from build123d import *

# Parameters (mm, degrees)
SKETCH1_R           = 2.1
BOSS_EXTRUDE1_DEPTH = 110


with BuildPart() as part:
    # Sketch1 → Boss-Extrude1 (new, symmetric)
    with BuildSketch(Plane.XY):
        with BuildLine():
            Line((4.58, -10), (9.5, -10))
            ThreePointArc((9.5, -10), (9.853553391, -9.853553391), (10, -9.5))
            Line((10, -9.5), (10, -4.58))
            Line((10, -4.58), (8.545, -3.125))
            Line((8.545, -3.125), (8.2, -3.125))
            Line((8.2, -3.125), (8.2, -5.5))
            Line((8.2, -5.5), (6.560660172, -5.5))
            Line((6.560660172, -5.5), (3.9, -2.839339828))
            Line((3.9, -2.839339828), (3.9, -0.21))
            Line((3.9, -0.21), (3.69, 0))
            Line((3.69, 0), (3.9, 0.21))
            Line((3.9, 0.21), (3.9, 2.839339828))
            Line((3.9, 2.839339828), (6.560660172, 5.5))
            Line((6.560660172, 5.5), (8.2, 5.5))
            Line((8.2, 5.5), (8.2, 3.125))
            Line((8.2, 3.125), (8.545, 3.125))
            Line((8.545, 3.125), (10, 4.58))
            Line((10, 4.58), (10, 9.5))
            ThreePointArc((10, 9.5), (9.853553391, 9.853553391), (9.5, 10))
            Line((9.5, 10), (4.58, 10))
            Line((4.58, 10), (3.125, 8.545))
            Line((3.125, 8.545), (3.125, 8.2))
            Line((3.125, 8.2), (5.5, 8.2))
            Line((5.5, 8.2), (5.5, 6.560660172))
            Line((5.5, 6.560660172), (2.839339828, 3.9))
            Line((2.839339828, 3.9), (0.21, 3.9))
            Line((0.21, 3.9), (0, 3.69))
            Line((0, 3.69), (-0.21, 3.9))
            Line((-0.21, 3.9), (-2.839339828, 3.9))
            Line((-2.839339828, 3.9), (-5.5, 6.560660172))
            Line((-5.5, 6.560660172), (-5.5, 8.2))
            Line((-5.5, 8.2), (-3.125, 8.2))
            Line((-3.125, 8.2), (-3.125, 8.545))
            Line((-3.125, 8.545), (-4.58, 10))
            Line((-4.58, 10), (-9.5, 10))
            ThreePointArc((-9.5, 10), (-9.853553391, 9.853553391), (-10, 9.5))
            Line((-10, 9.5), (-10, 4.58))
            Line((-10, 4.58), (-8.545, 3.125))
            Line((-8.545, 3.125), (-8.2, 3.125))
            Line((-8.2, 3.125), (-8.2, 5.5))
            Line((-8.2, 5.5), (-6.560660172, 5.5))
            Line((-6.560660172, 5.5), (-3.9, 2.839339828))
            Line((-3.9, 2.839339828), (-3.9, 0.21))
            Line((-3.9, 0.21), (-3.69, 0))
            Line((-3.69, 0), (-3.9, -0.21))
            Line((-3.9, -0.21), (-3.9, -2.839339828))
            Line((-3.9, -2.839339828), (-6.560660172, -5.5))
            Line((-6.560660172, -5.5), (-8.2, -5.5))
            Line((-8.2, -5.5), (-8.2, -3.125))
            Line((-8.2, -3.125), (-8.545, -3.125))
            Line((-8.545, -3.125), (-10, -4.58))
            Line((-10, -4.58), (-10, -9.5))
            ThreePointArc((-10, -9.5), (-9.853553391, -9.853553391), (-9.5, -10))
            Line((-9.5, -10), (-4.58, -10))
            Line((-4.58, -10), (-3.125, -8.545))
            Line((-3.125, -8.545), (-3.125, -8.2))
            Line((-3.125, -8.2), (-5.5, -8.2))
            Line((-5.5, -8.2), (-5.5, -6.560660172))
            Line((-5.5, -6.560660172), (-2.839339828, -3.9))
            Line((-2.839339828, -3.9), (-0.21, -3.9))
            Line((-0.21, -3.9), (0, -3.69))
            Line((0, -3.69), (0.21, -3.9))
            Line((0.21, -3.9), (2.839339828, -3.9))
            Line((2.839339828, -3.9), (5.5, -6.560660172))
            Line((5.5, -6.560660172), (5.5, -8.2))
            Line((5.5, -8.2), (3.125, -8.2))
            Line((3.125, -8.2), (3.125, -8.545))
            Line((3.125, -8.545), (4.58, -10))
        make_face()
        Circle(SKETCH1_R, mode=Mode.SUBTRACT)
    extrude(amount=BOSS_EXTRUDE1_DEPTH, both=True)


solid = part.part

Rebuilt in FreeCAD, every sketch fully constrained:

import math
import FreeCAD as App
import Part
import Sketcher
from FreeCAD import Vector

doc = App.newDocument("Part")
body = doc.addObject("PartDesign::Body", "Body")

# Sketch on XY plane
sketch1 = body.newObject("Sketcher::SketchObject", "Sketch")
sketch1.AttachmentSupport = (doc.getObject("XY_Plane"), [""])
sketch1.MapMode = "FlatFace"
sketch1.addGeometry([
    Part.LineSegment(Vector(4.58, -10, 0), Vector(9.5, -10, 0)),  # 0
    Part.ArcOfCircle(Part.Circle(Vector(9.5, -9.5, 0), Vector(0, 0, 1), 0.5), math.radians(-90), math.radians(0)),  # 1
    Part.LineSegment(Vector(10, -9.5, 0), Vector(10, -4.58, 0)),  # 2
    Part.LineSegment(Vector(10, -4.58, 0), Vector(8.545, -3.125, 0)),  # 3
    Part.LineSegment(Vector(8.545, -3.125, 0), Vector(8.2, -3.125, 0)),  # 4
    Part.LineSegment(Vector(8.2, -3.125, 0), Vector(8.2, -5.5, 0)),  # 5
    Part.LineSegment(Vector(8.2, -5.5, 0), Vector(6.56066, -5.5, 0)),  # 6
    Part.LineSegment(Vector(6.56066, -5.5, 0), Vector(3.9, -2.83934, 0)),  # 7
    Part.LineSegment(Vector(3.9, -2.83934, 0), Vector(3.9, -0.21, 0)),  # 8
    Part.LineSegment(Vector(3.9, -0.21, 0), Vector(3.69, 0, 0)),  # 9
    Part.LineSegment(Vector(3.69, 0, 0), Vector(3.9, 0.21, 0)),  # 10
    Part.LineSegment(Vector(3.9, 0.21, 0), Vector(3.9, 2.83934, 0)),  # 11
    Part.LineSegment(Vector(3.9, 2.83934, 0), Vector(6.56066, 5.5, 0)),  # 12
    Part.LineSegment(Vector(6.56066, 5.5, 0), Vector(8.2, 5.5, 0)),  # 13
    Part.LineSegment(Vector(8.2, 5.5, 0), Vector(8.2, 3.125, 0)),  # 14
    Part.LineSegment(Vector(8.2, 3.125, 0), Vector(8.545, 3.125, 0)),  # 15
    Part.LineSegment(Vector(8.545, 3.125, 0), Vector(10, 4.58, 0)),  # 16
    Part.LineSegment(Vector(10, 4.58, 0), Vector(10, 9.5, 0)),  # 17
    Part.ArcOfCircle(Part.Circle(Vector(9.5, 9.5, 0), Vector(0, 0, 1), 0.5), math.radians(0), math.radians(90)),  # 18
    Part.LineSegment(Vector(9.5, 10, 0), Vector(4.58, 10, 0)),  # 19
    Part.LineSegment(Vector(4.58, 10, 0), Vector(3.125, 8.545, 0)),  # 20
    Part.LineSegment(Vector(3.125, 8.545, 0), Vector(3.125, 8.2, 0)),  # 21
    Part.LineSegment(Vector(3.125, 8.2, 0), Vector(5.5, 8.2, 0)),  # 22
    Part.LineSegment(Vector(5.5, 8.2, 0), Vector(5.5, 6.56066, 0)),  # 23
    Part.LineSegment(Vector(5.5, 6.56066, 0), Vector(2.83934, 3.9, 0)),  # 24
    Part.LineSegment(Vector(2.83934, 3.9, 0), Vector(0.21, 3.9, 0)),  # 25
    Part.LineSegment(Vector(0.21, 3.9, 0), Vector(0, 3.69, 0)),  # 26
    Part.LineSegment(Vector(0, 3.69, 0), Vector(-0.21, 3.9, 0)),  # 27
    Part.LineSegment(Vector(-0.21, 3.9, 0), Vector(-2.83934, 3.9, 0)),  # 28
    Part.LineSegment(Vector(-2.83934, 3.9, 0), Vector(-5.5, 6.56066, 0)),  # 29
    Part.LineSegment(Vector(-5.5, 6.56066, 0), Vector(-5.5, 8.2, 0)),  # 30
    Part.LineSegment(Vector(-5.5, 8.2, 0), Vector(-3.125, 8.2, 0)),  # 31
    Part.LineSegment(Vector(-3.125, 8.2, 0), Vector(-3.125, 8.545, 0)),  # 32
    Part.LineSegment(Vector(-3.125, 8.545, 0), Vector(-4.58, 10, 0)),  # 33
    Part.LineSegment(Vector(-4.58, 10, 0), Vector(-9.5, 10, 0)),  # 34
    Part.ArcOfCircle(Part.Circle(Vector(-9.5, 9.5, 0), Vector(0, 0, 1), 0.5), math.radians(90), math.radians(180)),  # 35
    Part.LineSegment(Vector(-10, 9.5, 0), Vector(-10, 4.58, 0)),  # 36
    Part.LineSegment(Vector(-10, 4.58, 0), Vector(-8.545, 3.125, 0)),  # 37
    Part.LineSegment(Vector(-8.545, 3.125, 0), Vector(-8.2, 3.125, 0)),  # 38
    Part.LineSegment(Vector(-8.2, 3.125, 0), Vector(-8.2, 5.5, 0)),  # 39
    Part.LineSegment(Vector(-8.2, 5.5, 0), Vector(-6.56066, 5.5, 0)),  # 40
    Part.LineSegment(Vector(-6.56066, 5.5, 0), Vector(-3.9, 2.83934, 0)),  # 41
    Part.LineSegment(Vector(-3.9, 2.83934, 0), Vector(-3.9, 0.21, 0)),  # 42
    Part.LineSegment(Vector(-3.9, 0.21, 0), Vector(-3.69, 0, 0)),  # 43
    Part.LineSegment(Vector(-3.69, 0, 0), Vector(-3.9, -0.21, 0)),  # 44
    Part.LineSegment(Vector(-3.9, -0.21, 0), Vector(-3.9, -2.83934, 0)),  # 45
    Part.LineSegment(Vector(-3.9, -2.83934, 0), Vector(-6.56066, -5.5, 0)),  # 46
    Part.LineSegment(Vector(-6.56066, -5.5, 0), Vector(-8.2, -5.5, 0)),  # 47
    Part.LineSegment(Vector(-8.2, -5.5, 0), Vector(-8.2, -3.125, 0)),  # 48
    Part.LineSegment(Vector(-8.2, -3.125, 0), Vector(-8.545, -3.125, 0)),  # 49
    Part.LineSegment(Vector(-8.545, -3.125, 0), Vector(-10, -4.58, 0)),  # 50
    Part.LineSegment(Vector(-10, -4.58, 0), Vector(-10, -9.5, 0)),  # 51
    Part.ArcOfCircle(Part.Circle(Vector(-9.5, -9.5, 0), Vector(0, 0, 1), 0.5), math.radians(180), math.radians(270)),  # 52
    Part.LineSegment(Vector(-9.5, -10, 0), Vector(-4.58, -10, 0)),  # 53
    Part.LineSegment(Vector(-4.58, -10, 0), Vector(-3.125, -8.545, 0)),  # 54
    Part.LineSegment(Vector(-3.125, -8.545, 0), Vector(-3.125, -8.2, 0)),  # 55
    Part.LineSegment(Vector(-3.125, -8.2, 0), Vector(-5.5, -8.2, 0)),  # 56
    Part.LineSegment(Vector(-5.5, -8.2, 0), Vector(-5.5, -6.56066, 0)),  # 57
    Part.LineSegment(Vector(-5.5, -6.56066, 0), Vector(-2.83934, -3.9, 0)),  # 58
    Part.LineSegment(Vector(-2.83934, -3.9, 0), Vector(-0.21, -3.9, 0)),  # 59
    Part.LineSegment(Vector(-0.21, -3.9, 0), Vector(0, -3.69, 0)),  # 60
    Part.LineSegment(Vector(0, -3.69, 0), Vector(0.21, -3.9, 0)),  # 61
    Part.LineSegment(Vector(0.21, -3.9, 0), Vector(2.83934, -3.9, 0)),  # 62
    Part.LineSegment(Vector(2.83934, -3.9, 0), Vector(5.5, -6.56066, 0)),  # 63
    Part.LineSegment(Vector(5.5, -6.56066, 0), Vector(5.5, -8.2, 0)),  # 64
    Part.LineSegment(Vector(5.5, -8.2, 0), Vector(3.125, -8.2, 0)),  # 65
    Part.LineSegment(Vector(3.125, -8.2, 0), Vector(3.125, -8.545, 0)),  # 66
    Part.LineSegment(Vector(3.125, -8.545, 0), Vector(4.58, -10, 0)),  # 67
    Part.Circle(Vector(0, 0, 0), Vector(0, 0, 1), 2.1),  # 68
], False)
sketch1.addConstraint([
    Sketcher.Constraint("Tangent", 0, 2, 1, 1),
    Sketcher.Constraint("Tangent", 1, 2, 2, 1),
    Sketcher.Constraint("Coincident", 2, 2, 3, 1),
    Sketcher.Constraint("Coincident", 3, 2, 4, 1),
    Sketcher.Constraint("Coincident", 4, 2, 5, 1),
    Sketcher.Constraint("Coincident", 5, 2, 6, 1),
    Sketcher.Constraint("Coincident", 6, 2, 7, 1),
    Sketcher.Constraint("Coincident", 7, 2, 8, 1),
    Sketcher.Constraint("Coincident", 8, 2, 9, 1),
    Sketcher.Constraint("Coincident", 9, 2, 10, 1),
    Sketcher.Constraint("Coincident", 10, 2, 11, 1),
    Sketcher.Constraint("Coincident", 11, 2, 12, 1),
    Sketcher.Constraint("Coincident", 12, 2, 13, 1),
    Sketcher.Constraint("Coincident", 13, 2, 14, 1),
    Sketcher.Constraint("Coincident", 14, 2, 15, 1),
    Sketcher.Constraint("Coincident", 15, 2, 16, 1),
    Sketcher.Constraint("Coincident", 16, 2, 17, 1),
    Sketcher.Constraint("Tangent", 17, 2, 18, 1),
    Sketcher.Constraint("Tangent", 18, 2, 19, 1),
    Sketcher.Constraint("Coincident", 19, 2, 20, 1),
    Sketcher.Constraint("Coincident", 20, 2, 21, 1),
    Sketcher.Constraint("Coincident", 21, 2, 22, 1),
    Sketcher.Constraint("Coincident", 22, 2, 23, 1),
    Sketcher.Constraint("Coincident", 23, 2, 24, 1),
    Sketcher.Constraint("Coincident", 24, 2, 25, 1),
    Sketcher.Constraint("Coincident", 25, 2, 26, 1),
    Sketcher.Constraint("Coincident", 26, 2, 27, 1),
    Sketcher.Constraint("Coincident", 27, 2, 28, 1),
    Sketcher.Constraint("Coincident", 28, 2, 29, 1),
    Sketcher.Constraint("Coincident", 29, 2, 30, 1),
    Sketcher.Constraint("Coincident", 30, 2, 31, 1),
    Sketcher.Constraint("Coincident", 31, 2, 32, 1),
    Sketcher.Constraint("Coincident", 32, 2, 33, 1),
    Sketcher.Constraint("Coincident", 33, 2, 34, 1),
    Sketcher.Constraint("Tangent", 34, 2, 35, 1),
    Sketcher.Constraint("Tangent", 35, 2, 36, 1),
    Sketcher.Constraint("Coincident", 36, 2, 37, 1),
    Sketcher.Constraint("Coincident", 37, 2, 38, 1),
    Sketcher.Constraint("Coincident", 38, 2, 39, 1),
    Sketcher.Constraint("Coincident", 39, 2, 40, 1),
    Sketcher.Constraint("Coincident", 40, 2, 41, 1),
    Sketcher.Constraint("Coincident", 41, 2, 42, 1),
    Sketcher.Constraint("Coincident", 42, 2, 43, 1),
    Sketcher.Constraint("Coincident", 43, 2, 44, 1),
    Sketcher.Constraint("Coincident", 44, 2, 45, 1),
    Sketcher.Constraint("Coincident", 45, 2, 46, 1),
    Sketcher.Constraint("Coincident", 46, 2, 47, 1),
    Sketcher.Constraint("Coincident", 47, 2, 48, 1),
    Sketcher.Constraint("Coincident", 48, 2, 49, 1),
    Sketcher.Constraint("Coincident", 49, 2, 50, 1),
    Sketcher.Constraint("Coincident", 50, 2, 51, 1),
    Sketcher.Constraint("Tangent", 51, 2, 52, 1),
    Sketcher.Constraint("Tangent", 52, 2, 53, 1),
    Sketcher.Constraint("Coincident", 53, 2, 54, 1),
    Sketcher.Constraint("Coincident", 54, 2, 55, 1),
    Sketcher.Constraint("Coincident", 55, 2, 56, 1),
    Sketcher.Constraint("Coincident", 56, 2, 57, 1),
    Sketcher.Constraint("Coincident", 57, 2, 58, 1),
    Sketcher.Constraint("Coincident", 58, 2, 59, 1),
    Sketcher.Constraint("Coincident", 59, 2, 60, 1),
    Sketcher.Constraint("Coincident", 60, 2, 61, 1),
    Sketcher.Constraint("Coincident", 61, 2, 62, 1),
    Sketcher.Constraint("Coincident", 62, 2, 63, 1),
    Sketcher.Constraint("Coincident", 63, 2, 64, 1),
    Sketcher.Constraint("Coincident", 64, 2, 65, 1),
    Sketcher.Constraint("Coincident", 65, 2, 66, 1),
    Sketcher.Constraint("Coincident", 66, 2, 67, 1),
    Sketcher.Constraint("Coincident", 67, 2, 0, 1),
    Sketcher.Constraint("Horizontal", 0),
    Sketcher.Constraint("Vertical", 2),
    Sketcher.Constraint("Horizontal", 4),
    Sketcher.Constraint("Vertical", 5),
    Sketcher.Constraint("Horizontal", 6),
    Sketcher.Constraint("Vertical", 8),
    Sketcher.Constraint("Vertical", 11),
    Sketcher.Constraint("Horizontal", 13),
    Sketcher.Constraint("Vertical", 14),
    Sketcher.Constraint("Horizontal", 15),
    Sketcher.Constraint("Vertical", 17),
    Sketcher.Constraint("Horizontal", 19),
    Sketcher.Constraint("Vertical", 21),
    Sketcher.Constraint("Horizontal", 22),
    Sketcher.Constraint("Vertical", 23),
    Sketcher.Constraint("Horizontal", 25),
    Sketcher.Constraint("Horizontal", 28),
    Sketcher.Constraint("Vertical", 30),
    Sketcher.Constraint("Horizontal", 31),
    Sketcher.Constraint("Vertical", 32),
    Sketcher.Constraint("Horizontal", 34),
    Sketcher.Constraint("Vertical", 36),
    Sketcher.Constraint("Horizontal", 38),
    Sketcher.Constraint("Vertical", 39),
    Sketcher.Constraint("Horizontal", 40),
    Sketcher.Constraint("Vertical", 42),
    Sketcher.Constraint("Vertical", 45),
    Sketcher.Constraint("Horizontal", 47),
    Sketcher.Constraint("Vertical", 48),
    Sketcher.Constraint("Horizontal", 49),
    Sketcher.Constraint("Vertical", 51),
    Sketcher.Constraint("Horizontal", 53),
    Sketcher.Constraint("Vertical", 55),
    Sketcher.Constraint("Horizontal", 56),
    Sketcher.Constraint("Vertical", 57),
    Sketcher.Constraint("Horizontal", 59),
    Sketcher.Constraint("Horizontal", 62),
    Sketcher.Constraint("Vertical", 64),
    Sketcher.Constraint("Horizontal", 65),
    Sketcher.Constraint("Vertical", 66),
    Sketcher.Constraint("Coincident", 68, 3, -1, 1),
    Sketcher.Constraint("Equal", 1, 18),
    Sketcher.Constraint("Equal", 18, 35),
    Sketcher.Constraint("Equal", 35, 52),
    Sketcher.Constraint("Symmetric", 1, 3, 35, 3, -1, 1),
    Sketcher.Constraint("Symmetric", 18, 3, 52, 3, -1, 1),
    Sketcher.Constraint("Symmetric", 3, 2, 37, 2, -1, 1),
    Sketcher.Constraint("Symmetric", 5, 2, 39, 2, -1, 1),
    Sketcher.Constraint("Symmetric", 7, 2, 41, 2, -1, 1),
    Sketcher.Constraint("Symmetric", 9, 2, 43, 2, -1, 1),
    Sketcher.Constraint("Symmetric", 10, 2, 44, 2, -1, 1),
    Sketcher.Constraint("Symmetric", 12, 2, 46, 2, -1, 1),
    Sketcher.Constraint("Symmetric", 14, 2, 48, 2, -1, 1),
    Sketcher.Constraint("Symmetric", 20, 2, 54, 2, -1, 1),
    Sketcher.Constraint("Symmetric", 22, 2, 56, 2, -1, 1),
    Sketcher.Constraint("Symmetric", 24, 2, 58, 2, -1, 1),
    Sketcher.Constraint("Symmetric", 26, 2, 60, 2, -1, 1),
    Sketcher.Constraint("Symmetric", 27, 2, 61, 2, -1, 1),
    Sketcher.Constraint("Symmetric", 29, 2, 63, 2, -1, 1),
    Sketcher.Constraint("Symmetric", 31, 2, 65, 2, -1, 1),
    Sketcher.Constraint("Symmetric", 18, 3, 35, 3, -2),
    Sketcher.Constraint("Symmetric", 25, 2, 27, 2, -2),
    Sketcher.Constraint("Symmetric", 23, 2, 29, 2, -2),
    Sketcher.Constraint("Symmetric", 21, 2, 31, 2, -2),
    Sketcher.Constraint("Symmetric", 15, 2, 37, 2, -2),
    Sketcher.Constraint("Symmetric", 13, 2, 39, 2, -2),
    Sketcher.Constraint("Symmetric", 11, 2, 41, 2, -2),
    Sketcher.Constraint("PointOnObject", 9, 2, -1),
    Sketcher.Constraint("PointOnObject", 26, 2, -2),
    Sketcher.Constraint("Parallel", 3, 7),
    Sketcher.Constraint("Parallel", 7, 9),
    Sketcher.Constraint("Perpendicular", 9, 10),
    Sketcher.Constraint("Parallel", 10, 12),
    Sketcher.Constraint("Parallel", 12, 16),
    Sketcher.Constraint("Parallel", 16, 20),
    Sketcher.Constraint("Parallel", 20, 24),
    Sketcher.Constraint("Parallel", 24, 26),
    Sketcher.Constraint("Perpendicular", 26, 27),
    Sketcher.Constraint("Parallel", 27, 29),
    Sketcher.Constraint("Parallel", 29, 33),
    Sketcher.Constraint("Parallel", 33, 37),
    Sketcher.Constraint("Parallel", 37, 41),
    Sketcher.Constraint("Parallel", 41, 43),
    Sketcher.Constraint("Parallel", 44, 46),
    Sketcher.Constraint("Parallel", 46, 50),
    Sketcher.Constraint("Parallel", 50, 54),
    Sketcher.Constraint("Parallel", 54, 58),
    Sketcher.Constraint("Parallel", 58, 60),
    Sketcher.Constraint("Parallel", 61, 63),
    Sketcher.Constraint("Parallel", 63, 67),
    Sketcher.Constraint("Horizontal", 20, 2, 32, 2),
    Sketcher.Constraint("Horizontal", 2, 2, 50, 2),
    Sketcher.Constraint("Horizontal", 54, 2, 66, 2),
    Sketcher.Constraint("Equal", 53, 2),
    Sketcher.Constraint("Equal", 65, 5),
    Sketcher.Constraint("Equal", 62, 8),
    Sketcher.Constraint("Equal", 49, 21),
    Sketcher.Constraint("Equal", 47, 23),
    Sketcher.Constraint("Equal", 16, 20),
    Sketcher.Constraint("Equal", 12, 24),
    Sketcher.Constraint("Equal", 10, 26),
    Sketcher.Constraint("Diameter", 68, 4.2),
    Sketcher.Constraint("Radius", 1, 0.5),
    Sketcher.Constraint("DistanceY", 0, 2, -1, 1, 10.0),
    Sketcher.Constraint("DistanceX", 0, 1, 0, 2, 4.92),
    Sketcher.Constraint("DistanceX", -1, 1, 4, 2, 8.2),
    Sketcher.Constraint("DistanceY", 5, 2, -1, 1, 5.5),
    Sketcher.Constraint("DistanceX", -1, 1, 7, 2, 3.9),
    Sketcher.Constraint("DistanceX", 4, 2, 4, 1, 0.345),
    Sketcher.Constraint("DistanceY", 8, 2, -1, 1, 0.21),
    Sketcher.Constraint("DistanceX", 6, 2, 6, 1, 1.63934),
])
pad1 = body.newObject("PartDesign::Pad", "Pad")
pad1.Profile = sketch1
pad1.Length = 220
pad1.Midplane = True

doc.recompute()
